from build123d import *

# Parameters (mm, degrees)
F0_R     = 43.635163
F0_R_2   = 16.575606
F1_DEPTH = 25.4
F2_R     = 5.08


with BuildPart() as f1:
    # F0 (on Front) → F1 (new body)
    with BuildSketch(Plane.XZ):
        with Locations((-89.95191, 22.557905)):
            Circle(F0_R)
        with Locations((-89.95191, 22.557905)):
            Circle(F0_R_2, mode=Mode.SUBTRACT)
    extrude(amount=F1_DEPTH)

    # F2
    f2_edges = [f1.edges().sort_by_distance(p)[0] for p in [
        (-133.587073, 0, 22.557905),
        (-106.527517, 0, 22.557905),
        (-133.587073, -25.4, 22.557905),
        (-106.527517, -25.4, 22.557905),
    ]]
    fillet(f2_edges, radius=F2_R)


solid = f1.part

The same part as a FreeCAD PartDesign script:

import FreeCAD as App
import Part
import Sketcher

V = App.Vector
Q = App.Units.Quantity


def edges_at(feature, points):
    """Names of the edges that pass closest to the given points."""
    edges = feature.Shape.Edges
    near = lambda p: min(range(len(edges)), key=lambda i: edges[i].distToShape(Part.Vertex(*p))[0])
    return sorted({f"Edge{near(p) + 1}" for p in points})

doc = App.newDocument("Part")
params = doc.addObject("Spreadsheet::Sheet", "Params")
for row, (alias, value) in enumerate([
    ("pad1_length", "1 in"),
    ("fillet_radius", "0.2 in"),
], start=1):
    params.set(f"A{row}", alias)
    params.set(f"B{row}", "=" + value)
    params.setAlias(f"B{row}", alias)

body = doc.addObject("PartDesign::Body", "Body")

sketch1 = doc.addObject("Sketcher::SketchObject", "Sketch")
body.addObject(sketch1)
sketch1.AttachmentSupport = (doc.XZ_Plane, [""])
sketch1.MapMode = "FlatFace"
sketch1.addGeometry(Part.Circle(V(-90, 23, 0), V(0, 0, 1), 44), False)
sketch1.addGeometry(Part.Circle(V(-90, 23, 0), V(0, 0, 1), 17), False)
sketch1.addConstraint(Sketcher.Constraint("Coincident", 1, 3, 0, 3))
sketch1.addConstraint(Sketcher.Constraint("Diameter", 0, Q("87.270326 mm")))
sketch1.addConstraint(Sketcher.Constraint("Diameter", 1, Q("33.151212 mm")))
sketch1.addConstraint(Sketcher.Constraint("DistanceX", 0, 3, -1, 1, Q("89.95191 mm")))
sketch1.addConstraint(Sketcher.Constraint("DistanceY", -1, 1, 0, 3, Q("22.557905 mm")))
pad1 = doc.addObject("PartDesign::Pad", "Pad")
body.addObject(pad1)
pad1.Profile = sketch1
pad1.setExpression("Length", "Params.pad1_length")
doc.recompute()

fillet = doc.addObject("PartDesign::Fillet", "Fillet")
body.addObject(fillet)
fillet.Base = (pad1, edges_at(pad1, [
    (-133.587, 0, 22.558),
    (-106.528, 0, 22.558),
    (-133.587, -25.4, 22.558),
    (-106.528, -25.4, 22.558),
]))
fillet.setExpression("Radius", "Params.fillet_radius")

doc.recompute()
